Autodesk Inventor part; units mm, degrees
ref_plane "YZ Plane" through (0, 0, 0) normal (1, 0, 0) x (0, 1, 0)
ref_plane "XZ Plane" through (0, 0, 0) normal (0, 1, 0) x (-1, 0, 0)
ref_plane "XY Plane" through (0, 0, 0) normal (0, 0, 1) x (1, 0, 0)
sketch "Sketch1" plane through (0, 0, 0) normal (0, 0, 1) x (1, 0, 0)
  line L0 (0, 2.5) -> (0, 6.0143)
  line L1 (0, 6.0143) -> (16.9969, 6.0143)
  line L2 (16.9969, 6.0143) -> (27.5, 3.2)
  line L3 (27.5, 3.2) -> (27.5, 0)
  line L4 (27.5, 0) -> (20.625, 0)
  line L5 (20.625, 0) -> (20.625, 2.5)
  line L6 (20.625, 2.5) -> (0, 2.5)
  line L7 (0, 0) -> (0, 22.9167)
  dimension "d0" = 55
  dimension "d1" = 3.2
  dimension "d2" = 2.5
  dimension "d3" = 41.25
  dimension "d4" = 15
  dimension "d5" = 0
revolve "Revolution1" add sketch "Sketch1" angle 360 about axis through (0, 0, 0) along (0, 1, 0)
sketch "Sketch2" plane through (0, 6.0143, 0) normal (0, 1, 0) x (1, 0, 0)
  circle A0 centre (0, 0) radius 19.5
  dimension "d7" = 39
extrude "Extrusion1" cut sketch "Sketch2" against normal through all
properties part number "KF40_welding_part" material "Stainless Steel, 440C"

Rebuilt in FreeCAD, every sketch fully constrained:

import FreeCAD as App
import Part
import Sketcher
from FreeCAD import Vector
Q = App.Units.Quantity


def add_polygon(sketch, points):
    """Adds a closed chain of lines whose ends are joined by coincident constraints."""
    first, n = sketch.GeometryCount, len(points)
    for a, b in zip(points, points[1:] + points[:1]):
        sketch.addGeometry(Part.LineSegment(App.Vector(*a, 0), App.Vector(*b, 0)), False)
    for i in range(n):
        sketch.addConstraint(Sketcher.Constraint("Coincident", first + i, 2, first + (i + 1) % n, 1))

doc = App.newDocument("Part")
body = doc.addObject("PartDesign::Body", "Body")

# Sketch on XY plane
sketch1 = body.newObject("Sketcher::SketchObject", "Sketch")
sketch1.AttachmentSupport = (doc.getObject("XY_Plane"), [""])
sketch1.MapMode = "FlatFace"
add_polygon(sketch1, [(0, 6.0143), (0, 2.5), (20.625, 2.5), (20.625, 0), (27.5, 0), (27.5, 3.2), (16.9969, 6.0143)])  # lines 0-6
sketch1.addConstraint([
    Sketcher.Constraint("Vertical", 0),
    Sketcher.Constraint("Horizontal", 1),
    Sketcher.Constraint("Vertical", 2),
    Sketcher.Constraint("Horizontal", 3),
    Sketcher.Constraint("Vertical", 4),
    Sketcher.Constraint("Horizontal", 6),
    Sketcher.Constraint("PointOnObject", 0, 2, -2),
    Sketcher.Constraint("PointOnObject", 2, 2, -1),
    Sketcher.Constraint("DistanceY", 2, 2, 2, 1, Q("2.5 mm")),
    Sketcher.Constraint("DistanceY", 4, 1, 4, 2, Q("3.2 mm")),
    Sketcher.Constraint("Angle", 5, Q("165 deg")),
    Sketcher.Constraint("DistanceX", -1, 1, 3, 2, Q("27.5 mm")),
    Sketcher.Constraint("DistanceX", 1, 1, 1, 2, Q("20.625 mm")),
    Sketcher.Constraint("DistanceX", 6, 2, 6, 1, Q("16.997 mm")),
])
revolution = body.newObject("PartDesign::Revolution", "Revolution")
revolution.Profile = sketch1
revolution.ReferenceAxis = (sketch1, ["V_Axis"])
revolution.Angle = 360

# Sketch on XZ plane
sketch2 = body.newObject("Sketcher::SketchObject", "Sketch001")
sketch2.AttachmentSupport = (doc.getObject("XZ_Plane"), [""])
sketch2.MapMode = "FlatFace"
sketch2.AttachmentOffset = App.Placement(Vector(0, 0, -6.0143), App.Rotation())
sketch2.addGeometry(Part.Circle(Vector(0, 0, 0), Vector(0, 0, 1), 19.5), False)
sketch2.addConstraint([
    Sketcher.Constraint("Coincident", 0, 3, -1, 1),
    Sketcher.Constraint("Diameter", 0, Q("39 mm")),
])
pocket1 = body.newObject("PartDesign::Pocket", "Pocket")
pocket1.Profile = sketch2
pocket1.Type = "ThroughAll"
pocket1.Reversed = True

doc.recompute()
